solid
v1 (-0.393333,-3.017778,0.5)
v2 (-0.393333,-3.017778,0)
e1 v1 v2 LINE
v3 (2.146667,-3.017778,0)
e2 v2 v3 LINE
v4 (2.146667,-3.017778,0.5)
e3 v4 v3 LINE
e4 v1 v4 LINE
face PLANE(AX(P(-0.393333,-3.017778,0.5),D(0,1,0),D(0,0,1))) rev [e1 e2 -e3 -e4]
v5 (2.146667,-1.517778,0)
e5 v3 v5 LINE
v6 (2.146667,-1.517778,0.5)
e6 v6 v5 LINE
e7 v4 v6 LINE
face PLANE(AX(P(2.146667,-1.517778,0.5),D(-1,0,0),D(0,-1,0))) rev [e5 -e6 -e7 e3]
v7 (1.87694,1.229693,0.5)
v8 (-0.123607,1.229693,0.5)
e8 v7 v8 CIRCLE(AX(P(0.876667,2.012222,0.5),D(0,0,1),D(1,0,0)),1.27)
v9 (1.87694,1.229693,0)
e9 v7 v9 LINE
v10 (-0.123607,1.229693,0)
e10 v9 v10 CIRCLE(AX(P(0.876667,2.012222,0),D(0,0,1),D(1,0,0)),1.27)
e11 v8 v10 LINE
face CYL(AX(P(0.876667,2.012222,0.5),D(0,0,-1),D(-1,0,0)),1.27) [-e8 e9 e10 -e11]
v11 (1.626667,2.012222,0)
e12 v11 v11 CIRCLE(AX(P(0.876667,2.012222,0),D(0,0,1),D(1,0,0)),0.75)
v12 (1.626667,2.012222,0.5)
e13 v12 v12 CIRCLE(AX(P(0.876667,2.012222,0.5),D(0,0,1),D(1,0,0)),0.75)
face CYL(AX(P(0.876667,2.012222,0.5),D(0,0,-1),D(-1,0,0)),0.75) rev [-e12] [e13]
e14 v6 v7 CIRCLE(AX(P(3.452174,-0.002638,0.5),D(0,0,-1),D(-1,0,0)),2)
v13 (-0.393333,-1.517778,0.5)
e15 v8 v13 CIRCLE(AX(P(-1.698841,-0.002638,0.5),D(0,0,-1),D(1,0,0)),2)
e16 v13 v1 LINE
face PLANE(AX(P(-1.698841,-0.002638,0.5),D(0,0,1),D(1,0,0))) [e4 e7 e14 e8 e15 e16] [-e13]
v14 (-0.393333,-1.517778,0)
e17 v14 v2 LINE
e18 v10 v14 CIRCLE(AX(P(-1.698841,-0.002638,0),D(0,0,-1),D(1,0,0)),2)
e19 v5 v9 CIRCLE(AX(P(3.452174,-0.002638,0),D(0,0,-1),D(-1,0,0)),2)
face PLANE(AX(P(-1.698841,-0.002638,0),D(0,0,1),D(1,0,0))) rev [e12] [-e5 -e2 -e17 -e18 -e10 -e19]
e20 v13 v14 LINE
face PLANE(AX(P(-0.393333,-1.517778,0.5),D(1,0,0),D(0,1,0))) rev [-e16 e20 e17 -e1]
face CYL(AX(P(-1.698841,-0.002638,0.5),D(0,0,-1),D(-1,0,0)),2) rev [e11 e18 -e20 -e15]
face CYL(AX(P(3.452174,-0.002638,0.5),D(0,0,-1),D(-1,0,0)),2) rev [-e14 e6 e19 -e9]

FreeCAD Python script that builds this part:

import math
import FreeCAD as App
import Part
import Sketcher

V = App.Vector
Q = App.Units.Quantity

doc = App.newDocument("Part")
body = doc.addObject("PartDesign::Body", "Body")

# Sketch on XY plane
sketch1 = body.newObject("Sketcher::SketchObject", "Sketch")
sketch1.AttachmentSupport = (doc.getObject("XY_Plane"), [""])
sketch1.MapMode = "FlatFace"
sketch1.addGeometry([
    Part.LineSegment(V(-0.4, -3, 0), V(2.1, -3, 0)),  # 0
    Part.LineSegment(V(2.1, -3, 0), V(2.1, -1.5, 0)),  # 1
    Part.ArcOfCircle(Part.Circle(V(3.5, 0, 0), V(0, 0, 1), 2), math.radians(142), math.radians(229)),  # 2
    Part.ArcOfCircle(Part.Circle(V(0.9, 2, 0), V(0, 0, 1), 1.3), math.radians(-38), math.radians(218)),  # 3
    Part.ArcOfCircle(Part.Circle(V(-1.7, 0, 0), V(0, 0, 1), 2), math.radians(-49), math.radians(38)),  # 4
    Part.LineSegment(V(-0.4, -1.5, 0), V(-0.4, -3, 0)),  # 5
    Part.Circle(V(0.9, 2, 0), V(0, 0, 1), 0.8),  # 6
], False)
sketch1.addConstraint([
    Sketcher.Constraint("Coincident", 0, 2, 1, 1),
    Sketcher.Constraint("Coincident", 1, 2, 2, 2),
    Sketcher.Constraint("Tangent", 2, 1, 3, 1),
    Sketcher.Constraint("Tangent", 3, 2, 4, 2),
    Sketcher.Constraint("Coincident", 4, 1, 5, 1),
    Sketcher.Constraint("Coincident", 5, 2, 0, 1),
    Sketcher.Constraint("Horizontal", 0),
    Sketcher.Constraint("Vertical", 1),
    Sketcher.Constraint("Vertical", 5),
    Sketcher.Constraint("Coincident", 6, 3, 3, 3),
    Sketcher.Constraint("Equal", 2, 4),
    Sketcher.Constraint("Horizontal", 2, 3, 4, 3),
    Sketcher.Constraint("Horizontal", 1, 2, 4, 1),
    Sketcher.Constraint("Radius", 2, Q("2 mm")),
    Sketcher.Constraint("Diameter", 6, Q("1.5 mm")),
    Sketcher.Constraint("Radius", 3, Q("1.27 mm")),
    Sketcher.Constraint("DistanceY", 1, 1, 1, 2, Q("1.5 mm")),
    Sketcher.Constraint("DistanceX", 0, 1, 0, 2, Q("2.54 mm")),
    Sketcher.Constraint("DistanceY", 0, 2, 3, 3, Q("5.03 mm")),
    Sketcher.Constraint("DistanceX", 4, 3, -1, 1, Q("1.698841 mm")),
    Sketcher.Constraint("DistanceY", 2, 3, -1, 1, Q("0.002638 mm")),
])
pad1 = body.newObject("PartDesign::Pad", "Pad")
pad1.Profile = sketch1
pad1.Length = 0.5

doc.recompute()
